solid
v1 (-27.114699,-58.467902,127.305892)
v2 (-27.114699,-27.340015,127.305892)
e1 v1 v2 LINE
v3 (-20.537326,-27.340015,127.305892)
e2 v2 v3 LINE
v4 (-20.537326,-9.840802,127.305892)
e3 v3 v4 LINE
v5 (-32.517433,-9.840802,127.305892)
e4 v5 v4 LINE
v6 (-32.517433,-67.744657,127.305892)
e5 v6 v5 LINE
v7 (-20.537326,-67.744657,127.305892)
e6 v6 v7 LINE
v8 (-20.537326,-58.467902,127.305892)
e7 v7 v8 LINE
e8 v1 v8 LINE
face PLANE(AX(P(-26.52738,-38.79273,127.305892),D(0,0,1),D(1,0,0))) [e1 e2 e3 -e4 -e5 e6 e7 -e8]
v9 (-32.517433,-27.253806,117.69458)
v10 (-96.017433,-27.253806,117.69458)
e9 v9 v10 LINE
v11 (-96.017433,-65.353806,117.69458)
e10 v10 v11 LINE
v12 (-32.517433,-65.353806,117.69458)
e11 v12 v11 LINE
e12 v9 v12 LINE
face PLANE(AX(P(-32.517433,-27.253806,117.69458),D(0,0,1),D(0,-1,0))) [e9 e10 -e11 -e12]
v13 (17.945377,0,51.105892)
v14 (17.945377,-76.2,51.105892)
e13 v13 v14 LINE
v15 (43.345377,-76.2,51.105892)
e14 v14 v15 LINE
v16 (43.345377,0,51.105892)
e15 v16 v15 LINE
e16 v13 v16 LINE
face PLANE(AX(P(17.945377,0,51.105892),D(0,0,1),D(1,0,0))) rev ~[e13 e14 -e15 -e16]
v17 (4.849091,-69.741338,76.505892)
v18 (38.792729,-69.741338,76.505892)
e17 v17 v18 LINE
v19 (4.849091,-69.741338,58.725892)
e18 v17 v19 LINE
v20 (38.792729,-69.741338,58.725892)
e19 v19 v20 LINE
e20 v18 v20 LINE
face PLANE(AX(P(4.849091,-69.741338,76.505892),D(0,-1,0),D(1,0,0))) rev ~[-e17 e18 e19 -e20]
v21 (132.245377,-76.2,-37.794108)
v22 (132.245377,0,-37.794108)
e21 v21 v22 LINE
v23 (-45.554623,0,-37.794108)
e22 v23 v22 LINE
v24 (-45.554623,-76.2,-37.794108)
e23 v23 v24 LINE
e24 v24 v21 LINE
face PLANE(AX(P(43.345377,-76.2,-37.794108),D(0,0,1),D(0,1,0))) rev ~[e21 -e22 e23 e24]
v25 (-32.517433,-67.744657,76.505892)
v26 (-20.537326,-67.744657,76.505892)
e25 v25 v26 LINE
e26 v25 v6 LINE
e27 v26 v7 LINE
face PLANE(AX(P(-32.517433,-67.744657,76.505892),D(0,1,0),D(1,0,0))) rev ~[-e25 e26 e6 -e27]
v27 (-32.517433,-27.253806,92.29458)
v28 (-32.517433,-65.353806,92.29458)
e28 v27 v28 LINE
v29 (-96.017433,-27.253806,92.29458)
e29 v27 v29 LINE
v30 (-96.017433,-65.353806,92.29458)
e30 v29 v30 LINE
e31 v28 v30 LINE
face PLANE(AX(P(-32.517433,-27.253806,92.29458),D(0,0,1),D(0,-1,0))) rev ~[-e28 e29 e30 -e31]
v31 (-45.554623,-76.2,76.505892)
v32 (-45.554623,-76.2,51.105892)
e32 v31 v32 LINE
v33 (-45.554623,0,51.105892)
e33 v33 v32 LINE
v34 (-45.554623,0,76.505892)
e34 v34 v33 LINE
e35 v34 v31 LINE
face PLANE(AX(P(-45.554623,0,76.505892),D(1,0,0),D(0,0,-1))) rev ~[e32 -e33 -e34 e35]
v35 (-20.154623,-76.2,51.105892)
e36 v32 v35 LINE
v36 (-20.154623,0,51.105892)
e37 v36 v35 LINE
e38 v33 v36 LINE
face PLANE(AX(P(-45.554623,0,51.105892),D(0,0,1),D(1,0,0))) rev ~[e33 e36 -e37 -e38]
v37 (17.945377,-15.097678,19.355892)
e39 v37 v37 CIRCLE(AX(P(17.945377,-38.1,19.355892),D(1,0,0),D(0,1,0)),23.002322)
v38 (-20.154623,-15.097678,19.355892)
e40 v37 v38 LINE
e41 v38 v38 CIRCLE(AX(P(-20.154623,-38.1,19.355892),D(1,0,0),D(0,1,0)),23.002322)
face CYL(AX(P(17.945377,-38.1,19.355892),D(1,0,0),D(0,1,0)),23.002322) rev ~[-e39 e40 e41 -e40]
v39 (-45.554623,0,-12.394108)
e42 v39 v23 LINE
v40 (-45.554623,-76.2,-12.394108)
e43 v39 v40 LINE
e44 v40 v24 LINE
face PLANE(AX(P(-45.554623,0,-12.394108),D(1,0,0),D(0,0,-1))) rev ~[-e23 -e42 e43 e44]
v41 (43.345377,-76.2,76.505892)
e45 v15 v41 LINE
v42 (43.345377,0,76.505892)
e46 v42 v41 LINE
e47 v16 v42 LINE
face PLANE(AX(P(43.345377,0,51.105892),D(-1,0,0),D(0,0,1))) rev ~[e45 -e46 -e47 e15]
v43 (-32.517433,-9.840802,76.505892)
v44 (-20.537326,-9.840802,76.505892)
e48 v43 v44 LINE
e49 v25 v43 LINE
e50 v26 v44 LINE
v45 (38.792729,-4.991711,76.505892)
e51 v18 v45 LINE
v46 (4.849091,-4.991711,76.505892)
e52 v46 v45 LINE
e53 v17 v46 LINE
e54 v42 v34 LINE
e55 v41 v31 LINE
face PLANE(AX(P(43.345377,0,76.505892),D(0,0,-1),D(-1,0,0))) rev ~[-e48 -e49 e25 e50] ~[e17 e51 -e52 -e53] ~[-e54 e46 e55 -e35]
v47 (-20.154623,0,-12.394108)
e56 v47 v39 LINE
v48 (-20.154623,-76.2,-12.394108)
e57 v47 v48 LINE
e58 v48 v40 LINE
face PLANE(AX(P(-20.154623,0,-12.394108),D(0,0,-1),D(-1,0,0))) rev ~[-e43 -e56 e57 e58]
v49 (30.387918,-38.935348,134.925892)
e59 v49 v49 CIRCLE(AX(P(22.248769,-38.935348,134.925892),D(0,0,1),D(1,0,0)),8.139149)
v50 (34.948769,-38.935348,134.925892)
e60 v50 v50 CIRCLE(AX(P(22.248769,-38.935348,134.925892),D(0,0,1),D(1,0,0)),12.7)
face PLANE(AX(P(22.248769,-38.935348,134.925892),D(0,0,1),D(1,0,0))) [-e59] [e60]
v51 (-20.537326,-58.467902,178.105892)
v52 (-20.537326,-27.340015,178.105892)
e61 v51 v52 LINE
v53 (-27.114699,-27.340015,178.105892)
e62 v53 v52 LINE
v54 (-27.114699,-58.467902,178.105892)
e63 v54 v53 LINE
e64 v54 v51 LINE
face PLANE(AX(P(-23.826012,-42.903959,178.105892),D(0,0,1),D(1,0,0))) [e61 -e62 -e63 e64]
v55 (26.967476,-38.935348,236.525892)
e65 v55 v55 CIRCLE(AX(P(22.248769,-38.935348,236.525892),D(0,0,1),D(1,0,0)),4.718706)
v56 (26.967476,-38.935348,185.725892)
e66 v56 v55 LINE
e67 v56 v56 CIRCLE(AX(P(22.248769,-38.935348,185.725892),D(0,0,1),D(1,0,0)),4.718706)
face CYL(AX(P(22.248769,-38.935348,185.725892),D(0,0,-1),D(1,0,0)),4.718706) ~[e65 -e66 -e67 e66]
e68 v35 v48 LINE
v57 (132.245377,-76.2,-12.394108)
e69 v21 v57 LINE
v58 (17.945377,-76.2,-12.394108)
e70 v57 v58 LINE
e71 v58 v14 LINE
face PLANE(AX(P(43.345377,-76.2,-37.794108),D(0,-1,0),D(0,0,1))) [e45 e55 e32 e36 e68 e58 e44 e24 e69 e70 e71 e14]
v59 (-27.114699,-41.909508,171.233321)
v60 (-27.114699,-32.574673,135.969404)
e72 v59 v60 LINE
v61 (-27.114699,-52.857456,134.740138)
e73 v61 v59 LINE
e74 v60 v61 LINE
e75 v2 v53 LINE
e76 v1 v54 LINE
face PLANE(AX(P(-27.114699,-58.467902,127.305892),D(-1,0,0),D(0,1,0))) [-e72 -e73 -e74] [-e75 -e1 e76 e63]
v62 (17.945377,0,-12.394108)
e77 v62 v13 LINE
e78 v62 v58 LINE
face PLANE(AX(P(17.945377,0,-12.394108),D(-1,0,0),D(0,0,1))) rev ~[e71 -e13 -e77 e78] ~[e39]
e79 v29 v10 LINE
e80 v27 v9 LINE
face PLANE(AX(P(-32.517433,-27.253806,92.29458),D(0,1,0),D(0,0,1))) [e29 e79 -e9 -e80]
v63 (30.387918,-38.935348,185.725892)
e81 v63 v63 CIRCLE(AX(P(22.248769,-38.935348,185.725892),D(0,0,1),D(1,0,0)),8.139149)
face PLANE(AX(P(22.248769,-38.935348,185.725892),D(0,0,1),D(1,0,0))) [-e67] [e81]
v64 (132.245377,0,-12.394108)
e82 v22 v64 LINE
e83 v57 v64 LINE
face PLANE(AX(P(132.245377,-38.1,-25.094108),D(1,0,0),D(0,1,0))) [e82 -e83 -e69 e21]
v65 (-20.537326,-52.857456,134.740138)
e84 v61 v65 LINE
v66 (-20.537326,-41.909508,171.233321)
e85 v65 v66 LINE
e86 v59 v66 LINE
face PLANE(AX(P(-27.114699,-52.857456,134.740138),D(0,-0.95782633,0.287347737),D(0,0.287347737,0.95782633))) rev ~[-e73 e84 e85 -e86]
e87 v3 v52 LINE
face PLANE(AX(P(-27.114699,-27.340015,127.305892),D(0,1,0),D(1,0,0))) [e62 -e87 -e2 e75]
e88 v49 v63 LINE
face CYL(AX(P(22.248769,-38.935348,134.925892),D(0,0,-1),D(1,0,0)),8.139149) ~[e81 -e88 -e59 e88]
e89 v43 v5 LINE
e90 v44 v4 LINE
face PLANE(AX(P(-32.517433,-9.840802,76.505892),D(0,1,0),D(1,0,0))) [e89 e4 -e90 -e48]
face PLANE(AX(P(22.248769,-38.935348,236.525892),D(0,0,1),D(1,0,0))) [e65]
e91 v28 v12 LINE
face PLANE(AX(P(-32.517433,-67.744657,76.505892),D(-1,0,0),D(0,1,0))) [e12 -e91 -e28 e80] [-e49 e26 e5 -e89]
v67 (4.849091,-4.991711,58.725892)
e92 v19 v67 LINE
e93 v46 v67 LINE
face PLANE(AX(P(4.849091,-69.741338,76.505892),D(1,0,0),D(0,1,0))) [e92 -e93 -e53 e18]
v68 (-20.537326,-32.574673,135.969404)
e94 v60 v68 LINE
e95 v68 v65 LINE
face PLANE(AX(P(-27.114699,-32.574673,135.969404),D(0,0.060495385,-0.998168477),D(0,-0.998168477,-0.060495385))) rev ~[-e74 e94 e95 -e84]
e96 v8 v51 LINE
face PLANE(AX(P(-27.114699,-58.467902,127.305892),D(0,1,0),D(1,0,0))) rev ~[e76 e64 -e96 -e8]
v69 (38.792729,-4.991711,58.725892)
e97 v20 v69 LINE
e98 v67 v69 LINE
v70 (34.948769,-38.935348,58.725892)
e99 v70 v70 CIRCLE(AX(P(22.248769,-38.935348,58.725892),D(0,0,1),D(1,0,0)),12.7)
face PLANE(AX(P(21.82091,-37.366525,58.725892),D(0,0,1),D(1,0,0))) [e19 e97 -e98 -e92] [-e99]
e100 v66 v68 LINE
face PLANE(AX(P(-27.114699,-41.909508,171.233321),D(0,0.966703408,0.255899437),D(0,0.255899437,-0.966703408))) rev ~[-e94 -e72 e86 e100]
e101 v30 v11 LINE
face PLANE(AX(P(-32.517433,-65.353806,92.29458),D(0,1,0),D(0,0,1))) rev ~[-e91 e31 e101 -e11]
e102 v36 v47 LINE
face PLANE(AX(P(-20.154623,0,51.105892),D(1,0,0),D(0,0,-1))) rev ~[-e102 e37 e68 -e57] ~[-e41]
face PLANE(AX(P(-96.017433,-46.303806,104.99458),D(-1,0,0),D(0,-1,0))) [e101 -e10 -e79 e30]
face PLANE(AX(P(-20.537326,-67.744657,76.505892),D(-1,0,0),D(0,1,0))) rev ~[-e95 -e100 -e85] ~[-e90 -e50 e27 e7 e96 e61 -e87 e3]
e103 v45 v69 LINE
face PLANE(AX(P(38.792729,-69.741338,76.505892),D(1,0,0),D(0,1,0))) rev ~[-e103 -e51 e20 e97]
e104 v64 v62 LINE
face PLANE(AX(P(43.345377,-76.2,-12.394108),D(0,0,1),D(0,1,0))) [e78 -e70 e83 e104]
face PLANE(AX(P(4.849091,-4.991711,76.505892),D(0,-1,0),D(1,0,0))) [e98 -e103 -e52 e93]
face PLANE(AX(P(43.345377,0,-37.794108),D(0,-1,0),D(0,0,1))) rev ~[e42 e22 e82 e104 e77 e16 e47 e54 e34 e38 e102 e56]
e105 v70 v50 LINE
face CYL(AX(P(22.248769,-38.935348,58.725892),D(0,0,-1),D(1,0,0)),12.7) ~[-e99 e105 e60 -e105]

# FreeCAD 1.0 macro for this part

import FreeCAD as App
import Part
import Sketcher

V = App.Vector
Q = App.Units.Quantity

doc = App.newDocument("Part")
body = doc.addObject("PartDesign::Body", "Body")

# Sketch on XZ plane
sketch1 = doc.addObject("Sketcher::SketchObject", "Sketch")
body.addObject(sketch1)
sketch1.AttachmentSupport = (doc.XZ_Plane, [""])
sketch1.MapMode = "FlatFace"
sketch1.addGeometry([
    Part.LineSegment(V(-46, -12, 0), V(-46, -38, 0)),  # 0
    Part.LineSegment(V(-46, -38, 0), V(43, -38, 0)),  # 1
    Part.LineSegment(V(43, -38, 0), V(43, -12, 0)),  # 2
    Part.LineSegment(V(43, -12, 0), V(18, -12, 0)),  # 3
    Part.LineSegment(V(18, -12, 0), V(18, 51, 0)),  # 4
    Part.LineSegment(V(18, 51, 0), V(43, 51, 0)),  # 5
    Part.LineSegment(V(43, 51, 0), V(43, 77, 0)),  # 6
    Part.LineSegment(V(43, 77, 0), V(-46, 77, 0)),  # 7
    Part.LineSegment(V(-46, 77, 0), V(-46, 51, 0)),  # 8
    Part.LineSegment(V(-46, 51, 0), V(-20, 51, 0)),  # 9
    Part.LineSegment(V(-20, 51, 0), V(-20, -12, 0)),  # 10
    Part.LineSegment(V(-20, -12, 0), V(-46, -12, 0)),  # 11
], False)
sketch1.addConstraint([
    Sketcher.Constraint("Coincident", 0, 2, 1, 1),
    Sketcher.Constraint("Coincident", 1, 2, 2, 1),
    Sketcher.Constraint("Coincident", 2, 2, 3, 1),
    Sketcher.Constraint("Coincident", 3, 2, 4, 1),
    Sketcher.Constraint("Coincident", 4, 2, 5, 1),
    Sketcher.Constraint("Coincident", 5, 2, 6, 1),
    Sketcher.Constraint("Coincident", 6, 2, 7, 1),
    Sketcher.Constraint("Coincident", 7, 2, 8, 1),
    Sketcher.Constraint("Coincident", 8, 2, 9, 1),
    Sketcher.Constraint("Coincident", 9, 2, 10, 1),
    Sketcher.Constraint("Coincident", 10, 2, 11, 1),
    Sketcher.Constraint("Coincident", 11, 2, 0, 1),
    Sketcher.Constraint("Vertical", 0),
    Sketcher.Constraint("Horizontal", 1),
    Sketcher.Constraint("Vertical", 2),
    Sketcher.Constraint("Horizontal", 3),
    Sketcher.Constraint("Vertical", 4),
    Sketcher.Constraint("Horizontal", 5),
    Sketcher.Constraint("Vertical", 6),
    Sketcher.Constraint("Horizontal", 7),
    Sketcher.Constraint("Vertical", 8),
    Sketcher.Constraint("Horizontal", 9),
    Sketcher.Constraint("Vertical", 10),
    Sketcher.Constraint("Horizontal", 11),
    Sketcher.Constraint("Horizontal", 5, 2, 8, 2),
    Sketcher.Constraint("Horizontal", 3, 2, 10, 2),
    Sketcher.Constraint("Vertical", 2, 2, 5, 2),
    Sketcher.Constraint("Vertical", 0, 2, 7, 2),
    Sketcher.Constraint("Equal", 5, 9),
    Sketcher.Constraint("Equal", 11, 0),
    Sketcher.Constraint("Equal", 2, 6),
    Sketcher.Constraint("DistanceX", 3, 2, 3, 1, Q("1 in")),
    Sketcher.Constraint("DistanceX", 1, 1, 1, 2, Q("3.5 in")),
    Sketcher.Constraint("DistanceY", 4, 1, 4, 2, Q("2.5 in")),
    Sketcher.Constraint("DistanceX", 0, 2, -1, 1, Q("45.554623 mm")),
    Sketcher.Constraint("DistanceY", 0, 2, -1, 1, Q("37.794108 mm")),
])
pad1 = doc.addObject("PartDesign::Pad", "Pad")
body.addObject(pad1)
pad1.Profile = sketch1
pad1.Length = Q("3 in")

# Sketch on YZ plane
sketch2 = doc.addObject("Sketcher::SketchObject", "Sketch001")
body.addObject(sketch2)
sketch2.AttachmentSupport = (doc.YZ_Plane, [""])
sketch2.MapMode = "FlatFace"
sketch2.AttachmentOffset = App.Placement(V(0, 0, 17.945377), App.Rotation())
sketch2.addGeometry(Part.Circle(V(-38, 19, 0), V(0, 0, 1), 23), False)
sketch2.addConstraint([
    Sketcher.Constraint("DistanceX", 0, 3, -1, 1, Q("1.5 in")),
    Sketcher.Constraint("Diameter", 0, Q("46.004643 mm")),
    Sketcher.Constraint("DistanceY", -1, 1, 0, 3, Q("19.355892 mm")),
])
pocket1 = doc.addObject("PartDesign::Pocket", "Pocket")
body.addObject(pocket1)
pocket1.Profile = sketch2
pocket1.Type = "ThroughAll"

# Sketch on XY plane
sketch3 = doc.addObject("Sketcher::SketchObject", "Sketch002")
body.addObject(sketch3)
sketch3.AttachmentSupport = (doc.XY_Plane, [""])
sketch3.MapMode = "FlatFace"
sketch3.AttachmentOffset = App.Placement(V(0, 0, 76.505892), App.Rotation())
sketch3.addGeometry([
    Part.LineSegment(V(-33, -10, 0), V(-33, -68, 0)),
    Part.LineSegment(V(-33, -68, 0), V(-21, -68, 0)),
    Part.LineSegment(V(-21, -68, 0), V(-21, -10, 0)),
    Part.LineSegment(V(-21, -10, 0), V(-33, -10, 0)),
], False)
sketch3.addConstraint([
    Sketcher.Constraint("Coincident", 0, 2, 1, 1),
    Sketcher.Constraint("Coincident", 1, 2, 2, 1),
    Sketcher.Constraint("Coincident", 2, 2, 3, 1),
    Sketcher.Constraint("Coincident", 3, 2, 0, 1),
    Sketcher.Constraint("Vertical", 0),
    Sketcher.Constraint("Horizontal", 1),
    Sketcher.Constraint("Vertical", 2),
    Sketcher.Constraint("Horizontal", 3),
    Sketcher.Constraint("DistanceX", 1, 1, 1, 2, Q("11.980107 mm")),
    Sketcher.Constraint("DistanceY", 0, 2, 0, 1, Q("57.903855 mm")),
    Sketcher.Constraint("DistanceX", 0, 2, -1, 1, Q("32.517433 mm")),
    Sketcher.Constraint("DistanceY", 0, 2, -1, 1, Q("67.744657 mm")),
])
pad2 = doc.addObject("PartDesign::Pad", "Pad001")
body.addObject(pad2)
pad2.Profile = sketch3
pad2.Length = Q("2 in")

# Sketch on XY plane
sketch4 = doc.addObject("Sketcher::SketchObject", "Sketch003")
body.addObject(sketch4)
sketch4.AttachmentSupport = (doc.XY_Plane, [""])
sketch4.MapMode = "FlatFace"
sketch4.AttachmentOffset = App.Placement(V(0, 0, 76.505892), App.Rotation())
sketch4.addGeometry([
    Part.LineSegment(V(5, -5, 0), V(5, -70, 0)),
    Part.LineSegment(V(5, -70, 0), V(39, -70, 0)),
    Part.LineSegment(V(39, -70, 0), V(39, -5, 0)),
    Part.LineSegment(V(39, -5, 0), V(5, -5, 0)),
], False)
sketch4.addConstraint([
    Sketcher.Constraint("Coincident", 0, 2, 1, 1),
    Sketcher.Constraint("Coincident", 1, 2, 2, 1),
    Sketcher.Constraint("Coincident", 2, 2, 3, 1),
    Sketcher.Constraint("Coincident", 3, 2, 0, 1),
    Sketcher.Constraint("Vertical", 0),
    Sketcher.Constraint("Horizontal", 1),
    Sketcher.Constraint("Vertical", 2),
    Sketcher.Constraint("Horizontal", 3),
    Sketcher.Constraint("DistanceX", 1, 1, 1, 2, Q("33.943638 mm")),
    Sketcher.Constraint("DistanceY", 0, 2, 0, 1, Q("64.749627 mm")),
    Sketcher.Constraint("DistanceX", -1, 1, 0, 2, Q("4.849091 mm")),
    Sketcher.Constraint("DistanceY", 0, 2, -1, 1, Q("69.741338 mm")),
])
pocket2 = doc.addObject("PartDesign::Pocket", "Pocket001")
body.addObject(pocket2)
pocket2.Profile = sketch4
pocket2.Length = Q("0.7 in")

# Sketch on XY plane
sketch5 = doc.addObject("Sketcher::SketchObject", "Sketch004")
body.addObject(sketch5)
sketch5.AttachmentSupport = (doc.XY_Plane, [""])
sketch5.MapMode = "FlatFace"
sketch5.AttachmentOffset = App.Placement(V(0, 0, 58.725892), App.Rotation())
sketch5.addGeometry(Part.Circle(V(22, -39, 0), V(0, 0, 1), 13), False)
sketch5.addConstraint([
    Sketcher.Constraint("Diameter", 0, Q("1 in")),
    Sketcher.Constraint("DistanceX", -1, 1, 0, 3, Q("22.248769 mm")),
    Sketcher.Constraint("DistanceY", 0, 3, -1, 1, Q("38.935348 mm")),
])
pad3 = doc.addObject("PartDesign::Pad", "Pad002")
body.addObject(pad3)
pad3.Profile = sketch5
pad3.Length = Q("3 in")

# Sketch on YZ plane
sketch6 = doc.addObject("Sketcher::SketchObject", "Sketch005")
body.addObject(sketch6)
sketch6.AttachmentSupport = (doc.YZ_Plane, [""])
sketch6.MapMode = "FlatFace"
sketch6.AttachmentOffset = App.Placement(V(0, 0, -32.517433), App.Rotation())
sketch6.addGeometry([
    Part.LineSegment(V(-27, 118, 0), V(-27, 92, 0)),
    Part.LineSegment(V(-27, 92, 0), V(-65, 92, 0)),
    Part.LineSegment(V(-65, 92, 0), V(-65, 118, 0)),
    Part.LineSegment(V(-65, 118, 0), V(-27, 118, 0)),
], False)
sketch6.addConstraint([
    Sketcher.Constraint("Coincident", 0, 2, 1, 1),
    Sketcher.Constraint("Coincident", 1, 2, 2, 1),
    Sketcher.Constraint("Coincident", 2, 2, 3, 1),
    Sketcher.Constraint("Coincident", 3, 2, 0, 1),
    Sketcher.Constraint("Vertical", 0),
    Sketcher.Constraint("Horizontal", 1),
    Sketcher.Constraint("Vertical", 2),
    Sketcher.Constraint("Horizontal", 3),
    Sketcher.Constraint("DistanceY", 0, 2, 0, 1, Q("1 in")),
    Sketcher.Constraint("DistanceX", 1, 2, 1, 1, Q("1.5 in")),
    Sketcher.Constraint("DistanceY", -1, 1, 0, 2, Q("92.29458 mm")),
    Sketcher.Constraint("DistanceX", 0, 2, -1, 1, Q("27.253806 mm")),
])
pad4 = doc.addObject("PartDesign::Pad", "Pad003")
body.addObject(pad4)
pad4.Profile = sketch6
pad4.Length = Q("2.5 in")
pad4.Reversed = True

# Sketch on XY plane
sketch7 = doc.addObject("Sketcher::SketchObject", "Sketch006")
body.addObject(sketch7)
sketch7.AttachmentSupport = (doc.XY_Plane, [""])
sketch7.MapMode = "FlatFace"
sketch7.AttachmentOffset = App.Placement(V(0, 0, 134.925892), App.Rotation())
sketch7.addGeometry(Part.Circle(V(22, -39, 0), V(0, 0, 1), 8), False)
sketch7.addConstraint([
    Sketcher.Constraint("Diameter", 0, Q("16.278297 mm")),
    Sketcher.Constraint("DistanceX", -1, 1, 0, 3, Q("22.248769 mm")),
    Sketcher.Constraint("DistanceY", 0, 3, -1, 1, Q("38.935348 mm")),
])
pad5 = doc.addObject("PartDesign::Pad", "Pad004")
body.addObject(pad5)
pad5.Profile = sketch7
pad5.Length = Q("2 in")

# Sketch on XY plane
sketch8 = doc.addObject("Sketcher::SketchObject", "Sketch007")
body.addObject(sketch8)
sketch8.AttachmentSupport = (doc.XY_Plane, [""])
sketch8.MapMode = "FlatFace"
sketch8.AttachmentOffset = App.Placement(V(0, 0, 185.725892), App.Rotation())
sketch8.addGeometry(Part.Circle(V(22.2, -38.9, 0), V(0, 0, 1), 4.7), False)
sketch8.addConstraint([
    Sketcher.Constraint("Diameter", 0, Q("9.437413 mm")),
    Sketcher.Constraint("DistanceX", -1, 1, 0, 3, Q("22.248769 mm")),
    Sketcher.Constraint("DistanceY", 0, 3, -1, 1, Q("38.935348 mm")),
])
pad6 = doc.addObject("PartDesign::Pad", "Pad005")
body.addObject(pad6)
pad6.Profile = sketch8
pad6.Length = Q("2 in")

# Sketch on XY plane
sketch9 = doc.addObject("Sketcher::SketchObject", "Sketch008")
body.addObject(sketch9)
sketch9.AttachmentSupport = (doc.XY_Plane, [""])
sketch9.MapMode = "FlatFace"
sketch9.AttachmentOffset = App.Placement(V(0, 0, 127.305892), App.Rotation())
sketch9.addGeometry([
    Part.LineSegment(V(-27, -27, 0), V(-27, -58, 0)),
    Part.LineSegment(V(-27, -58, 0), V(-21, -58, 0)),
    Part.LineSegment(V(-21, -58, 0), V(-21, -27, 0)),
    Part.LineSegment(V(-21, -27, 0), V(-27, -27, 0)),
], False)
sketch9.addConstraint([
    Sketcher.Constraint("Coincident", 0, 2, 1, 1),
    Sketcher.Constraint("Coincident", 1, 2, 2, 1),
    Sketcher.Constraint("Coincident", 2, 2, 3, 1),
    Sketcher.Constraint("Coincident", 3, 2, 0, 1),
    Sketcher.Constraint("Vertical", 0),
    Sketcher.Constraint("Horizontal", 1),
    Sketcher.Constraint("Vertical", 2),
    Sketcher.Constraint("Horizontal", 3),
    Sketcher.Constraint("DistanceX", 0, 2, -1, 1, Q("27.114699 mm")),
    Sketcher.Constraint("DistanceX", 1, 1, 1, 2, Q("6.577373 mm")),
    Sketcher.Constraint("DistanceY", 0, 2, 0, 1, Q("31.127887 mm")),
    Sketcher.Constraint("DistanceY", 0, 2, -1, 1, Q("58.467902 mm")),
])
pad7 = doc.addObject("PartDesign::Pad", "Pad006")
body.addObject(pad7)
pad7.Profile = sketch9
pad7.Length = Q("2 in")

# Sketch on YZ plane
sketch10 = doc.addObject("Sketcher::SketchObject", "Sketch009")
body.addObject(sketch10)
sketch10.AttachmentSupport = (doc.YZ_Plane, [""])
sketch10.MapMode = "FlatFace"
sketch10.AttachmentOffset = App.Placement(V(0, 0, -27.114699), App.Rotation())
sketch10.addGeometry([
    Part.LineSegment(V(-42, 171, 0), V(-33, 136, 0)),
    Part.LineSegment(V(-33, 136, 0), V(-53, 135, 0)),
    Part.LineSegment(V(-53, 135, 0), V(-42, 171, 0)),
], False)
sketch10.addConstraint([
    Sketcher.Constraint("Coincident", 0, 2, 1, 1),
    Sketcher.Constraint("Coincident", 1, 2, 2, 1),
    Sketcher.Constraint("Coincident", 2, 2, 0, 1),
    Sketcher.Constraint("Distance", 1, Q("0.8 in")),
    Sketcher.Constraint("Distance", 2, Q("1.5 in")),
    Sketcher.Constraint("DistanceY", -1, 1, 2, 2, Q("171.233321 mm")),
    Sketcher.Constraint("DistanceX", 1, 2, 2, 2, Q("10.947949 mm")),
    Sketcher.Constraint("Distance", 0, Q("36.478528 mm")),
    Sketcher.Constraint("DistanceX", 0, 2, -1, 1, Q("32.574673 mm")),
])
pocket3 = doc.addObject("PartDesign::Pocket", "Pocket002")
body.addObject(pocket3)
pocket3.Profile = sketch10
pocket3.Length = Q("1.2 in")
pocket3.Reversed = True

# Sketch on YZ plane
sketch11 = doc.addObject("Sketcher::SketchObject", "Sketch010")
body.addObject(sketch11)
sketch11.AttachmentSupport = (doc.YZ_Plane, [""])
sketch11.MapMode = "FlatFace"
sketch11.AttachmentOffset = App.Placement(V(0, 0, 43.345377), App.Rotation())
sketch11.addGeometry([
    Part.LineSegment(V(-76, -12, 0), V(-76, -38, 0)),
    Part.LineSegment(V(-76, -38, 0), V(0, -38, 0)),
    Part.LineSegment(V(0, -38, 0), V(0, -12, 0)),
    Part.LineSegment(V(0, -12, 0), V(-76, -12, 0)),
], False)
sketch11.addConstraint([
    Sketcher.Constraint("Coincident", 0, 2, 1, 1),
    Sketcher.Constraint("Coincident", 1, 2, 2, 1),
    Sketcher.Constraint("Coincident", 2, 2, 3, 1),
    Sketcher.Constraint("Coincident", 3, 2, 0, 1),
    Sketcher.Constraint("Vertical", 0),
    Sketcher.Constraint("Horizontal", 1),
    Sketcher.Constraint("Vertical", 2),
    Sketcher.Constraint("Horizontal", 3),
    Sketcher.Constraint("PointOnObject", 1, 2, -2),
    Sketcher.Constraint("DistanceX", 1, 1, 1, 2, Q("3 in")),
    Sketcher.Constraint("DistanceY", 0, 2, 0, 1, Q("1 in")),
    Sketcher.Constraint("DistanceY", 0, 2, -1, 1, Q("37.794108 mm")),
])
pad8 = doc.addObject("PartDesign::Pad", "Pad007")
body.addObject(pad8)
pad8.Profile = sketch11
pad8.Length = Q("3.5 in")

doc.recompute()
